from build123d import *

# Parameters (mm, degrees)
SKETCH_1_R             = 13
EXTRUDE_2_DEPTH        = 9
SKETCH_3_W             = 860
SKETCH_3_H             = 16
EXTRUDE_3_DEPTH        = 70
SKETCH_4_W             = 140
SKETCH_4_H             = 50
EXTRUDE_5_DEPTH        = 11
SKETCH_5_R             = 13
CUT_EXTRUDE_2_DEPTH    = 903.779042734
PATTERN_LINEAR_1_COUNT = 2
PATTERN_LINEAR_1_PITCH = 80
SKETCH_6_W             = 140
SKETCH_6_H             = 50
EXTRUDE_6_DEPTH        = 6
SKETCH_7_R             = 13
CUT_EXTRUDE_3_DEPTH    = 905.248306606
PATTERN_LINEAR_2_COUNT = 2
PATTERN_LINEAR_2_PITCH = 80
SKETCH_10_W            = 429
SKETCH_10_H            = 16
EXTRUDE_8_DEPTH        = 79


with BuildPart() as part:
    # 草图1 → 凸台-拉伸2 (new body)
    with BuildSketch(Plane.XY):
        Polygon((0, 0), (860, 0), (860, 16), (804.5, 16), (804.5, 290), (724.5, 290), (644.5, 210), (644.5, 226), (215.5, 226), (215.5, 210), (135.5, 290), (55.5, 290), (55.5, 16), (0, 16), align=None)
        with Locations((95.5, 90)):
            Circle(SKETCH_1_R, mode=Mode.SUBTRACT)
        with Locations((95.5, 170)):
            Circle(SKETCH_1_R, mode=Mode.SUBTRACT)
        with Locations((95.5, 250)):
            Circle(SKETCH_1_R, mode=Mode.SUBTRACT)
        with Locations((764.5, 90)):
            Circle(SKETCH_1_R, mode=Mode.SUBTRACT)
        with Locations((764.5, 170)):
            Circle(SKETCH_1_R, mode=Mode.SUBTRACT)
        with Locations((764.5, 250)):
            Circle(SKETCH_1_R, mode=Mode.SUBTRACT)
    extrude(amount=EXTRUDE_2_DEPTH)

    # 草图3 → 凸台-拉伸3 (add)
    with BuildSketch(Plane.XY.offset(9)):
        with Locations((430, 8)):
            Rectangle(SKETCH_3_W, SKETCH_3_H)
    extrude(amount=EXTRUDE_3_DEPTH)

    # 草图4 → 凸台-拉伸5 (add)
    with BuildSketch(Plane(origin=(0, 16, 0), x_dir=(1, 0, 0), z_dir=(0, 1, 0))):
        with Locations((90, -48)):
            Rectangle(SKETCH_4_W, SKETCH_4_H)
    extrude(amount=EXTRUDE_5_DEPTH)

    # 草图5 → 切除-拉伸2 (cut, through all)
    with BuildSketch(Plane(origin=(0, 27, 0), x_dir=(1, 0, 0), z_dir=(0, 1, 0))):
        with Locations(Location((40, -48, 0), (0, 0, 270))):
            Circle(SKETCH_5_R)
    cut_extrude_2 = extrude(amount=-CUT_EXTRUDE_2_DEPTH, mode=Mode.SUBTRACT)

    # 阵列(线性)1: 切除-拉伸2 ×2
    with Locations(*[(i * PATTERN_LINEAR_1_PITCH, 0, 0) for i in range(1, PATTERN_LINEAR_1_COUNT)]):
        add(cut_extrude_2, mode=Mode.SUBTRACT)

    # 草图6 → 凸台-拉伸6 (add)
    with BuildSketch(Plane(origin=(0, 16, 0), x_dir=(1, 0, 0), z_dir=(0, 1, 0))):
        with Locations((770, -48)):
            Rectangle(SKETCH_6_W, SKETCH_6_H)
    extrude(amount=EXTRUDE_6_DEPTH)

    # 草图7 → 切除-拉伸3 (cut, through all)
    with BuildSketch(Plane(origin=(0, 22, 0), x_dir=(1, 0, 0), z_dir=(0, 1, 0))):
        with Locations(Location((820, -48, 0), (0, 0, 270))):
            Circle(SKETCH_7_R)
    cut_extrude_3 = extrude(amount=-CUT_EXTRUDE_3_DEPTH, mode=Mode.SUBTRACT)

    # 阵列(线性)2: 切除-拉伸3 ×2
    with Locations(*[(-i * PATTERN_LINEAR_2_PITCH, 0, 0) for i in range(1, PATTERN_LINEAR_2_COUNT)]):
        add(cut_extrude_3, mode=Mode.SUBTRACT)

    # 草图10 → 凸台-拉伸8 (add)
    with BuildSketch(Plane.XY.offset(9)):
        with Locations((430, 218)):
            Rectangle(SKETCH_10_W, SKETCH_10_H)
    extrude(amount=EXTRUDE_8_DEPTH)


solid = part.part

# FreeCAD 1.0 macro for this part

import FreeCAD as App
import Part
import Sketcher

V = App.Vector
Q = App.Units.Quantity


def add_polygon(sketch, points):
    """Adds a closed chain of lines whose ends are joined by coincident constraints."""
    first, n = sketch.GeometryCount, len(points)
    for a, b in zip(points, points[1:] + points[:1]):
        sketch.addGeometry(Part.LineSegment(App.Vector(*a, 0), App.Vector(*b, 0)), False)
    for i in range(n):
        sketch.addConstraint(Sketcher.Constraint("Coincident", first + i, 2, first + (i + 1) % n, 1))

doc = App.newDocument("Part")
body = doc.addObject("PartDesign::Body", "Body")

sketch1 = body.newObject("Sketcher::SketchObject", "Sketch")
sketch1.AttachmentSupport = (doc.getObject("XY_Plane"), [""])
sketch1.MapMode = "FlatFace"
add_polygon(sketch1, [(0, 0), (860, 0), (860, 16), (804.5, 16), (804.5, 290), (724.5, 290), (644.5, 210), (644.5, 226), (215.5, 226), (215.5, 210), (135.5, 290), (55.5, 290), (55.5, 16), (0, 16)])
sketch1.addGeometry(Part.Circle(V(95.5, 90, 0), V(0, 0, 1), 13), False)
sketch1.addGeometry(Part.Circle(V(764.5, 90, 0), V(0, 0, 1), 13), False)
sketch1.addGeometry(Part.Circle(V(95.5, 170, 0), V(0, 0, 1), 13), False)
sketch1.addGeometry(Part.Circle(V(95.5, 250, 0), V(0, 0, 1), 13), False)
sketch1.addGeometry(Part.Circle(V(764.5, 170, 0), V(0, 0, 1), 13), False)
sketch1.addGeometry(Part.Circle(V(764.5, 250, 0), V(0, 0, 1), 13), False)
sketch1.addConstraint([
    Sketcher.Constraint("Horizontal", 0),
    Sketcher.Constraint("Vertical", 1),
    Sketcher.Constraint("Horizontal", 2),
    Sketcher.Constraint("Vertical", 3),
    Sketcher.Constraint("Horizontal", 4),
    Sketcher.Constraint("Vertical", 6),
    Sketcher.Constraint("Horizontal", 7),
    Sketcher.Constraint("Vertical", 8),
    Sketcher.Constraint("Horizontal", 10),
    Sketcher.Constraint("Vertical", 11),
    Sketcher.Constraint("Horizontal", 12),
    Sketcher.Constraint("Vertical", 13),
    Sketcher.Constraint("Coincident", 13, 2, -1, 1),
    Sketcher.Constraint("Equal", 14, 15),
    Sketcher.Constraint("Equal", 15, 16),
    Sketcher.Constraint("Equal", 16, 17),
    Sketcher.Constraint("Equal", 17, 18),
    Sketcher.Constraint("Equal", 18, 19),
    Sketcher.Constraint("Perpendicular", 5, 9),
    Sketcher.Constraint("Horizontal", 14, 3, 15, 3),
    Sketcher.Constraint("Horizontal", 16, 3, 18, 3),
    Sketcher.Constraint("Horizontal", 17, 3, 19, 3),
    Sketcher.Constraint("Horizontal", 5, 2, 8, 2),
    Sketcher.Constraint("Horizontal", 4, 2, 9, 2),
    Sketcher.Constraint("Horizontal", 2, 2, 11, 2),
    Sketcher.Constraint("Vertical", 14, 3, 16, 3),
    Sketcher.Constraint("Vertical", 16, 3, 17, 3),
    Sketcher.Constraint("Vertical", 15, 3, 18, 3),
    Sketcher.Constraint("Vertical", 18, 3, 19, 3),
    Sketcher.Constraint("Equal", 4, 10),
    Sketcher.Constraint("Equal", 2, 12),
    Sketcher.Constraint("Equal", 1, 6),
    Sketcher.Constraint("Equal", 5, 9),
    Sketcher.Constraint("Diameter", 14, Q("26 mm")),
    Sketcher.Constraint("DistanceX", 0, 1, 0, 2, Q("860 mm")),
    Sketcher.Constraint("DistanceX", 4, 2, 4, 1, Q("80 mm")),
    Sketcher.Constraint("DistanceX", 7, 2, 7, 1, Q("429 mm")),
    Sketcher.Constraint("DistanceY", 1, 1, 1, 2, Q("16 mm")),
    Sketcher.Constraint("DistanceY", 3, 1, 3, 2, Q("274 mm")),
    Sketcher.Constraint("DistanceX", 2, 2, 2, 1, Q("55.5 mm")),
    Sketcher.Constraint("DistanceY", -1, 1, 14, 3, Q("90 mm")),
    Sketcher.Constraint("DistanceY", -1, 1, 16, 3, Q("170 mm")),
    Sketcher.Constraint("DistanceY", -1, 1, 17, 3, Q("250 mm")),
    Sketcher.Constraint("DistanceX", 14, 3, 15, 3, Q("669 mm")),
    Sketcher.Constraint("DistanceX", 15, 3, 2, 2, Q("40 mm")),
])
pad1 = body.newObject("PartDesign::Pad", "Pad")
pad1.Profile = sketch1
pad1.Length = 9

sketch2 = body.newObject("Sketcher::SketchObject", "Sketch001")
sketch2.AttachmentSupport = (doc.getObject("XY_Plane"), [""])
sketch2.MapMode = "FlatFace"
sketch2.AttachmentOffset = App.Placement(V(0, 0, 9), App.Rotation())
add_polygon(sketch2, [(0, 16), (0, 0), (860, 0), (860, 16)])
sketch2.addConstraint([
    Sketcher.Constraint("Vertical", 0),
    Sketcher.Constraint("Horizontal", 1),
    Sketcher.Constraint("Vertical", 2),
    Sketcher.Constraint("Horizontal", 3),
    Sketcher.Constraint("Coincident", 0, 2, -1, 1),
    Sketcher.Constraint("DistanceX", 1, 1, 1, 2, Q("860 mm")),
    Sketcher.Constraint("DistanceY", 0, 2, 0, 1, Q("16 mm")),
])
pad2 = body.newObject("PartDesign::Pad", "Pad001")
pad2.Profile = sketch2
pad2.Length = 70

sketch3 = body.newObject("Sketcher::SketchObject", "Sketch002")
sketch3.AttachmentSupport = (doc.getObject("XZ_Plane"), [""])
sketch3.MapMode = "FlatFace"
sketch3.AttachmentOffset = App.Placement(V(0, 0, -16), App.Rotation())
add_polygon(sketch3, [(20, 23), (20, 73), (160, 73), (160, 23)])
sketch3.addConstraint([
    Sketcher.Constraint("Vertical", 0),
    Sketcher.Constraint("Horizontal", 1),
    Sketcher.Constraint("Vertical", 2),
    Sketcher.Constraint("Horizontal", 3),
    Sketcher.Constraint("DistanceX", 1, 1, 1, 2, Q("140 mm")),
    Sketcher.Constraint("DistanceY", 0, 1, 0, 2, Q("50 mm")),
    Sketcher.Constraint("DistanceX", -1, 1, 0, 2, Q("20 mm")),
    Sketcher.Constraint("DistanceY", -1, 1, 0, 2, Q("73 mm")),
])
pad3 = body.newObject("PartDesign::Pad", "Pad002")
pad3.Profile = sketch3
pad3.Length = 11
pad3.Reversed = True

sketch4 = body.newObject("Sketcher::SketchObject", "Sketch003")
sketch4.AttachmentSupport = (doc.getObject("XZ_Plane"), [""])
sketch4.MapMode = "FlatFace"
sketch4.AttachmentOffset = App.Placement(V(0, 0, -27), App.Rotation())
sketch4.addGeometry(Part.Circle(V(40, 48, 0), V(0, 0, 1), 13), False)
sketch4.addConstraint([
    Sketcher.Constraint("Diameter", 0, Q("26 mm")),
    Sketcher.Constraint("DistanceX", -1, 1, 0, 3, Q("40 mm")),
    Sketcher.Constraint("DistanceY", -1, 1, 0, 3, Q("48 mm")),
])
pocket1 = body.newObject("PartDesign::Pocket", "Pocket")
pocket1.Profile = sketch4
pocket1.Type = "ThroughAll"
pocket1.Reversed = True
doc.recompute()

linearpattern = body.newObject("PartDesign::LinearPattern", "LinearPattern")
linearpattern.Originals = [pocket1]
linearpattern.Direction = (doc.getObject("X_Axis"), [""])
linearpattern.Mode = "offset"
linearpattern.Offset = 80
linearpattern.Occurrences = 2
body.Tip = linearpattern

sketch5 = body.newObject("Sketcher::SketchObject", "Sketch004")
sketch5.AttachmentSupport = (doc.getObject("XZ_Plane"), [""])
sketch5.MapMode = "FlatFace"
sketch5.AttachmentOffset = App.Placement(V(0, 0, -16), App.Rotation())
add_polygon(sketch5, [(700, 23), (700, 73), (840, 73), (840, 23)])
sketch5.addConstraint([
    Sketcher.Constraint("Vertical", 0),
    Sketcher.Constraint("Horizontal", 1),
    Sketcher.Constraint("Vertical", 2),
    Sketcher.Constraint("Horizontal", 3),
    Sketcher.Constraint("DistanceX", 1, 1, 1, 2, Q("140 mm")),
    Sketcher.Constraint("DistanceY", 0, 1, 0, 2, Q("50 mm")),
    Sketcher.Constraint("DistanceX", -1, 1, 0, 2, Q("700 mm")),
    Sketcher.Constraint("DistanceY", -1, 1, 0, 2, Q("73 mm")),
])
pad4 = body.newObject("PartDesign::Pad", "Pad003")
pad4.Profile = sketch5
pad4.Length = 6
pad4.Reversed = True

sketch6 = body.newObject("Sketcher::SketchObject", "Sketch005")
sketch6.AttachmentSupport = (doc.getObject("XZ_Plane"), [""])
sketch6.MapMode = "FlatFace"
sketch6.AttachmentOffset = App.Placement(V(0, 0, -22), App.Rotation())
sketch6.addGeometry(Part.Circle(V(820, 48, 0), V(0, 0, 1), 13), False)
sketch6.addConstraint([
    Sketcher.Constraint("Diameter", 0, Q("26 mm")),
    Sketcher.Constraint("DistanceX", -1, 1, 0, 3, Q("820 mm")),
    Sketcher.Constraint("DistanceY", -1, 1, 0, 3, Q("48 mm")),
])
pocket2 = body.newObject("PartDesign::Pocket", "Pocket001")
pocket2.Profile = sketch6
pocket2.Type = "ThroughAll"
pocket2.Reversed = True
doc.recompute()

linearpattern2 = body.newObject("PartDesign::LinearPattern", "LinearPattern001")
linearpattern2.Originals = [pocket2]
linearpattern2.Direction = (doc.getObject("X_Axis"), [""])
linearpattern2.Mode = "offset"
linearpattern2.Offset = 80
linearpattern2.Occurrences = 2
linearpattern2.Reversed = True
body.Tip = linearpattern2

sketch7 = body.newObject("Sketcher::SketchObject", "Sketch006")
sketch7.AttachmentSupport = (doc.getObject("XY_Plane"), [""])
sketch7.MapMode = "FlatFace"
sketch7.AttachmentOffset = App.Placement(V(0, 0, 9), App.Rotation())
add_polygon(sketch7, [(215.5, 226), (215.5, 210), (644.5, 210), (644.5, 226)])
sketch7.addConstraint([
    Sketcher.Constraint("Vertical", 0),
    Sketcher.Constraint("Horizontal", 1),
    Sketcher.Constraint("Vertical", 2),
    Sketcher.Constraint("Horizontal", 3),
    Sketcher.Constraint("DistanceX", 1, 1, 1, 2, Q("429 mm")),
    Sketcher.Constraint("DistanceY", 0, 2, 0, 1, Q("16 mm")),
    Sketcher.Constraint("DistanceY", -1, 1, 0, 2, Q("210 mm")),
    Sketcher.Constraint("DistanceX", -1, 1, 0, 2, Q("215.5 mm")),
])
pad5 = body.newObject("PartDesign::Pad", "Pad004")
pad5.Profile = sketch7
pad5.Length = 79

doc.recompute()
